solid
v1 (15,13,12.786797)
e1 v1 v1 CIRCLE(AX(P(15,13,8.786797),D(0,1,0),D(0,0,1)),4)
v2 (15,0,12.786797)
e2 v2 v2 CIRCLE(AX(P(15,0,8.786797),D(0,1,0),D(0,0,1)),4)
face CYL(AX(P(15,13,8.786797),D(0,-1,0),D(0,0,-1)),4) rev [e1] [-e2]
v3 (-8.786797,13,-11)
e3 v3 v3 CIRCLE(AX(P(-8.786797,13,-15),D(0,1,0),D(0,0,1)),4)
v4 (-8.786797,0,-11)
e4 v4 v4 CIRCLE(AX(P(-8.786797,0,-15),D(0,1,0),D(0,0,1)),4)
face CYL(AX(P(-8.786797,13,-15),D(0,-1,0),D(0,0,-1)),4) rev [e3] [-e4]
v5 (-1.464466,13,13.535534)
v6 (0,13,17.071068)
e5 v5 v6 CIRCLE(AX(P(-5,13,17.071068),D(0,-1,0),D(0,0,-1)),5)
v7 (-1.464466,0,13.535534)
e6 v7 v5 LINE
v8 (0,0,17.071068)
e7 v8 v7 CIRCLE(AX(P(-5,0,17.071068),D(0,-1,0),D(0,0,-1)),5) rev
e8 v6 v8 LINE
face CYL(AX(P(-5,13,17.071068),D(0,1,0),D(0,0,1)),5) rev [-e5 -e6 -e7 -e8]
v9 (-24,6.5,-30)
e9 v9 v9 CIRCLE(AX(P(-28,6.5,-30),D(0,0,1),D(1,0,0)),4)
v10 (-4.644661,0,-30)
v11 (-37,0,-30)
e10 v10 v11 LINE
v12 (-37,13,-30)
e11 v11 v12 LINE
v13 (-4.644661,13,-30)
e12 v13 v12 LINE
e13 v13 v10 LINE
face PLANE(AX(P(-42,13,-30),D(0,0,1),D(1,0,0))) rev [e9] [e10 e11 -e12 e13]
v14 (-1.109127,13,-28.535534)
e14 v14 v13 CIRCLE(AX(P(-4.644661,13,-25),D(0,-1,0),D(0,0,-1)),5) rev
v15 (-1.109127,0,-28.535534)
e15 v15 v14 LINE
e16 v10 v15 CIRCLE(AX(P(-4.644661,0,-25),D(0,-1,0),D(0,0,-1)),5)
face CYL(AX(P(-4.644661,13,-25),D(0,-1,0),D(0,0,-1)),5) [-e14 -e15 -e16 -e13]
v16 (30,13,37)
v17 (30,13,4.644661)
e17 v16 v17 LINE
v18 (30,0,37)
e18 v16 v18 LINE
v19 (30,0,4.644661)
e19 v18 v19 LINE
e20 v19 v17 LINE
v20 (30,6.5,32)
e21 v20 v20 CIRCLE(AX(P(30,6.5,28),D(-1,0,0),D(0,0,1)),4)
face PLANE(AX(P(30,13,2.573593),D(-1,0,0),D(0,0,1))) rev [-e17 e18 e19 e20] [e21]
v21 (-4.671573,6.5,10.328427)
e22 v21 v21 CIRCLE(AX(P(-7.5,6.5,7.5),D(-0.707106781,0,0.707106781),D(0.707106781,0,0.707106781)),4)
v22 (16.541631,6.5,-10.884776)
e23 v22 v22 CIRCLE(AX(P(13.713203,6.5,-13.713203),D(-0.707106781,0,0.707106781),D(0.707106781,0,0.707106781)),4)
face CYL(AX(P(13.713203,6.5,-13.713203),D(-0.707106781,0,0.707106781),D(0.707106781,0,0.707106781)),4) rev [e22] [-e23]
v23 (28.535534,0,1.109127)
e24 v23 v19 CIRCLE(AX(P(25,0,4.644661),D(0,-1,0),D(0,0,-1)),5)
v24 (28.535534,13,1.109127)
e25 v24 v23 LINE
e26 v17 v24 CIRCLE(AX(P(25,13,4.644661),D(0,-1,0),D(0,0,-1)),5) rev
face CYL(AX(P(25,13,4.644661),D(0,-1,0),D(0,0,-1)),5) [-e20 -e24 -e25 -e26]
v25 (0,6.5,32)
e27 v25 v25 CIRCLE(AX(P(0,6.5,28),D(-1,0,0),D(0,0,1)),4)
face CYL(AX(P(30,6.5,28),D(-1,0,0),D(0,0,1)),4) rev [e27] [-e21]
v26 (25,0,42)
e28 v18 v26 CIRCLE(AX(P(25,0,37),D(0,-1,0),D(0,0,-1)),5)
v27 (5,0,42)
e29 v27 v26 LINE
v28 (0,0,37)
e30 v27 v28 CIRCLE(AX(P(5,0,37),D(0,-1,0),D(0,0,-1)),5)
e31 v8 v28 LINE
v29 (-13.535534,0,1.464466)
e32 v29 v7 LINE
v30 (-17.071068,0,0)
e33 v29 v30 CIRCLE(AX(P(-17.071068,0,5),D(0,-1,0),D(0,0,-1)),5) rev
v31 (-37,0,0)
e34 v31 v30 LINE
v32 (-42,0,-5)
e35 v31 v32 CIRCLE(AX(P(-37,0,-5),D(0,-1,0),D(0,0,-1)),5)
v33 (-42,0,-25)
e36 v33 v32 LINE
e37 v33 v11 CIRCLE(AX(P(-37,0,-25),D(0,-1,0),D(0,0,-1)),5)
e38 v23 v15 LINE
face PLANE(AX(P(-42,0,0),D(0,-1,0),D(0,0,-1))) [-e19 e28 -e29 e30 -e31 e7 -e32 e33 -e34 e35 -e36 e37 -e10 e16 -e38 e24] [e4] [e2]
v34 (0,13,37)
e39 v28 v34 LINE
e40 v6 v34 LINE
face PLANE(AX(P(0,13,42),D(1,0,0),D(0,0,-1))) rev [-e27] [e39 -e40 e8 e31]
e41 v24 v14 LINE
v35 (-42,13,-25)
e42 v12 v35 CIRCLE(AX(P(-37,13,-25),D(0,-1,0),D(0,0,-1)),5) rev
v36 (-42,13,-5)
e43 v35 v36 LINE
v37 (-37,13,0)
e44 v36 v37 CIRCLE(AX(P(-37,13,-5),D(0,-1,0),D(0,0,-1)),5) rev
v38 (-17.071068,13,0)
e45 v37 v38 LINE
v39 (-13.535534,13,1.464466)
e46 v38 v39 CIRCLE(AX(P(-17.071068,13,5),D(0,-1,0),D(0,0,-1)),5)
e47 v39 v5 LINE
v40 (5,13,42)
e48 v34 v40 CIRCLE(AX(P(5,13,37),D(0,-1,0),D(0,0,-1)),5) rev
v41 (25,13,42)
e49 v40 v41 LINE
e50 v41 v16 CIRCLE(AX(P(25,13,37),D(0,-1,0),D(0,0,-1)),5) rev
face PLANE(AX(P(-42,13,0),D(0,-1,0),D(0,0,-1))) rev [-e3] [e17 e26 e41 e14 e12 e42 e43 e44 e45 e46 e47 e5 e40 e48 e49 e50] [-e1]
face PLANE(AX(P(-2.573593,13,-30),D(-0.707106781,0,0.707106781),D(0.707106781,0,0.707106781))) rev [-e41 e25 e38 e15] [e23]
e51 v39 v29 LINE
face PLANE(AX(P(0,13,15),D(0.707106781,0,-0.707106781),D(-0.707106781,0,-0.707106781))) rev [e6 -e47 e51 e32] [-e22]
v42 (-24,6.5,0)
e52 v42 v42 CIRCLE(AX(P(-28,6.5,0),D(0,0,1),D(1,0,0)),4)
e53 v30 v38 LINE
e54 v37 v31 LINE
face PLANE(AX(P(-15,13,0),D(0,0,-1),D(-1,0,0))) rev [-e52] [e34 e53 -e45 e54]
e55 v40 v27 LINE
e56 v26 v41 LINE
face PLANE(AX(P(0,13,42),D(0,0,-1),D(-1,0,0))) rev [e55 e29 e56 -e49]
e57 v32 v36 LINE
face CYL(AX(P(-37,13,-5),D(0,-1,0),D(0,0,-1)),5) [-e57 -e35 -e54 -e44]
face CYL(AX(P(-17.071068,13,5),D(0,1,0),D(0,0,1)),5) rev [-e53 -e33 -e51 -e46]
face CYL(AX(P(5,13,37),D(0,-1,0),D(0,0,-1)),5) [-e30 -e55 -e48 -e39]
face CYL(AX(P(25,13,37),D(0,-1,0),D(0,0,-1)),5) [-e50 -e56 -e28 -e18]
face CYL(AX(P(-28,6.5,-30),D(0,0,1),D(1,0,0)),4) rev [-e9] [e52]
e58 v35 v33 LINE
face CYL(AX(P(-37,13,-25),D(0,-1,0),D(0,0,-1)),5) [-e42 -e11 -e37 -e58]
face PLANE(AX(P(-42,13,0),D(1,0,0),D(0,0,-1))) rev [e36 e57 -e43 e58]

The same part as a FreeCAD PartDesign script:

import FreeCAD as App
import Part
import Sketcher
Q = App.Units.Quantity


def edges_at(feature, points):
    """Names of the edges that pass closest to the given points."""
    edges = feature.Shape.Edges
    near = lambda p: min(range(len(edges)), key=lambda i: edges[i].distToShape(Part.Vertex(*p))[0])
    return sorted({f"Edge{near(p) + 1}" for p in points})

doc = App.newDocument("Part")
body = doc.addObject("PartDesign::Body", "Body")

sketch1 = body.newObject("Sketcher::SketchObject", "Sketch")
sketch1.AttachmentSupport = (doc.getObject("XZ_Plane"), [""])
sketch1.MapMode = "FlatFace"
sketch1.addGeometry([
    Part.LineSegment(App.Vector(-15, 0, 0), App.Vector(0, 15, 0)),
    Part.LineSegment(App.Vector(0, 15, 0), App.Vector(0, 42, 0)),
    Part.LineSegment(App.Vector(0, 42, 0), App.Vector(30, 42, 0)),
    Part.LineSegment(App.Vector(30, 42, 0), App.Vector(30, 2.6, 0)),
    Part.LineSegment(App.Vector(30, 2.6, 0), App.Vector(-2.6, -30, 0)),
    Part.LineSegment(App.Vector(-2.6, -30, 0), App.Vector(-42, -30, 0)),
    Part.LineSegment(App.Vector(-42, -30, 0), App.Vector(-42, 0, 0)),
    Part.LineSegment(App.Vector(-42, 0, 0), App.Vector(-15, 0, 0)),
    Part.Circle(App.Vector(15, 8.8, 0), App.Vector(0, 0, 1), 4),
    Part.Circle(App.Vector(-8.8, -15, 0), App.Vector(0, 0, 1), 4),
], False)
sketch1.addConstraint([
    Sketcher.Constraint("Coincident", 0, 2, 1, 1),
    Sketcher.Constraint("Coincident", 1, 2, 2, 1),
    Sketcher.Constraint("Coincident", 2, 2, 3, 1),
    Sketcher.Constraint("Coincident", 3, 2, 4, 1),
    Sketcher.Constraint("Coincident", 4, 2, 5, 1),
    Sketcher.Constraint("Coincident", 5, 2, 6, 1),
    Sketcher.Constraint("Coincident", 6, 2, 7, 1),
    Sketcher.Constraint("Coincident", 7, 2, 0, 1),
    Sketcher.Constraint("Vertical", 1),
    Sketcher.Constraint("Horizontal", 2),
    Sketcher.Constraint("Vertical", 3),
    Sketcher.Constraint("Horizontal", 5),
    Sketcher.Constraint("Vertical", 6),
    Sketcher.Constraint("Horizontal", 7),
    Sketcher.Constraint("Equal", 8, 9),
    Sketcher.Constraint("PointOnObject", 0, 2, -2),
    Sketcher.Constraint("PointOnObject", 6, 2, -1),
    Sketcher.Constraint("Parallel", 0, 4),
    Sketcher.Constraint("Equal", 7, 1),
    Sketcher.Constraint("Equal", 5, 3),
    Sketcher.Constraint("Equal", 2, 6),
    Sketcher.Constraint("Diameter", 8, Q("8 mm")),
    Sketcher.Constraint("DistanceX", 2, 1, 2, 2, Q("30 mm")),
    Sketcher.Constraint("DistanceX", 7, 1, 7, 2, Q("27 mm")),
    Sketcher.Constraint("DistanceX", -1, 1, 8, 3, Q("15 mm")),
    Sketcher.Constraint("DistanceY", 9, 3, -1, 1, Q("15 mm")),
    Sketcher.Constraint("DistanceY", -1, 1, 0, 2, Q("15 mm")),
    Sketcher.Constraint("DistanceX", 5, 2, 5, 1, Q("39.426407 mm")),
    Sketcher.Constraint("DistanceY", -1, 1, 8, 3, Q("8.786797 mm")),
    Sketcher.Constraint("DistanceX", 9, 3, -1, 1, Q("8.786797 mm")),
])
pad1 = body.newObject("PartDesign::Pad", "Pad")
pad1.Profile = sketch1
pad1.Length = 13
pad1.Reversed = True
doc.recompute()

fillet = body.newObject("PartDesign::Fillet", "Fillet")
fillet.Base = (pad1, edges_at(pad1, [
    (-42, 6.5, 0),
    (-42, 6.5, -30),
    (-2.574, 6.5, -30),
    (30, 6.5, 2.574),
    (30, 6.5, 42),
    (0, 6.5, 42),
    (0, 6.5, 15),
    (-15, 6.5, 0),
]))
fillet.Radius = 5

sketch2 = body.newObject("Sketcher::SketchObject", "Sketch001")
sketch2.Placement = App.Placement(App.Vector(-7.5, 0, 7.5), App.Rotation(App.Vector(0.707106781, 0, 0.707106781), App.Vector(0, 0.999999999, 0), App.Vector(-0.707106781, 0, 0.707106781), "ZXY"))
sketch2.addGeometry(Part.Circle(App.Vector(0, 6.5, 0), App.Vector(0, 0, 1), 4), False)
sketch2.addConstraint([
    Sketcher.Constraint("PointOnObject", 0, 3, -2),
    Sketcher.Constraint("Diameter", 0, Q("8 mm")),
    Sketcher.Constraint("DistanceY", -1, 1, 0, 3, Q("6.5 mm")),
])
pocket1 = body.newObject("PartDesign::Pocket", "Pocket")
pocket1.Profile = sketch2
pocket1.Length = 30

sketch3 = body.newObject("Sketcher::SketchObject", "Sketch002")
sketch3.AttachmentSupport = (doc.getObject("XY_Plane"), [""])
sketch3.MapMode = "FlatFace"
sketch3.addGeometry(Part.Circle(App.Vector(-28, 6.5, 0), App.Vector(0, 0, 1), 4), False)
sketch3.addConstraint([
    Sketcher.Constraint("Diameter", 0, Q("8 mm")),
    Sketcher.Constraint("DistanceX", 0, 3, -1, 1, Q("28 mm")),
    Sketcher.Constraint("DistanceY", -1, 1, 0, 3, Q("6.5 mm")),
])
pocket2 = body.newObject("PartDesign::Pocket", "Pocket001")
pocket2.Profile = sketch3
pocket2.Length = 30

sketch4 = body.newObject("Sketcher::SketchObject", "Sketch003")
sketch4.AttachmentSupport = (doc.getObject("YZ_Plane"), [""])
sketch4.MapMode = "FlatFace"
sketch4.addGeometry(Part.Circle(App.Vector(6.5, 28, 0), App.Vector(0, 0, 1), 4), False)
sketch4.addConstraint([
    Sketcher.Constraint("Diameter", 0, Q("8 mm")),
    Sketcher.Constraint("DistanceY", -1, 1, 0, 3, Q("28 mm")),
    Sketcher.Constraint("DistanceX", -1, 1, 0, 3, Q("6.5 mm")),
])
pocket3 = body.newObject("PartDesign::Pocket", "Pocket002")
pocket3.Profile = sketch4
pocket3.Length = 30
pocket3.Reversed = True

doc.recompute()
